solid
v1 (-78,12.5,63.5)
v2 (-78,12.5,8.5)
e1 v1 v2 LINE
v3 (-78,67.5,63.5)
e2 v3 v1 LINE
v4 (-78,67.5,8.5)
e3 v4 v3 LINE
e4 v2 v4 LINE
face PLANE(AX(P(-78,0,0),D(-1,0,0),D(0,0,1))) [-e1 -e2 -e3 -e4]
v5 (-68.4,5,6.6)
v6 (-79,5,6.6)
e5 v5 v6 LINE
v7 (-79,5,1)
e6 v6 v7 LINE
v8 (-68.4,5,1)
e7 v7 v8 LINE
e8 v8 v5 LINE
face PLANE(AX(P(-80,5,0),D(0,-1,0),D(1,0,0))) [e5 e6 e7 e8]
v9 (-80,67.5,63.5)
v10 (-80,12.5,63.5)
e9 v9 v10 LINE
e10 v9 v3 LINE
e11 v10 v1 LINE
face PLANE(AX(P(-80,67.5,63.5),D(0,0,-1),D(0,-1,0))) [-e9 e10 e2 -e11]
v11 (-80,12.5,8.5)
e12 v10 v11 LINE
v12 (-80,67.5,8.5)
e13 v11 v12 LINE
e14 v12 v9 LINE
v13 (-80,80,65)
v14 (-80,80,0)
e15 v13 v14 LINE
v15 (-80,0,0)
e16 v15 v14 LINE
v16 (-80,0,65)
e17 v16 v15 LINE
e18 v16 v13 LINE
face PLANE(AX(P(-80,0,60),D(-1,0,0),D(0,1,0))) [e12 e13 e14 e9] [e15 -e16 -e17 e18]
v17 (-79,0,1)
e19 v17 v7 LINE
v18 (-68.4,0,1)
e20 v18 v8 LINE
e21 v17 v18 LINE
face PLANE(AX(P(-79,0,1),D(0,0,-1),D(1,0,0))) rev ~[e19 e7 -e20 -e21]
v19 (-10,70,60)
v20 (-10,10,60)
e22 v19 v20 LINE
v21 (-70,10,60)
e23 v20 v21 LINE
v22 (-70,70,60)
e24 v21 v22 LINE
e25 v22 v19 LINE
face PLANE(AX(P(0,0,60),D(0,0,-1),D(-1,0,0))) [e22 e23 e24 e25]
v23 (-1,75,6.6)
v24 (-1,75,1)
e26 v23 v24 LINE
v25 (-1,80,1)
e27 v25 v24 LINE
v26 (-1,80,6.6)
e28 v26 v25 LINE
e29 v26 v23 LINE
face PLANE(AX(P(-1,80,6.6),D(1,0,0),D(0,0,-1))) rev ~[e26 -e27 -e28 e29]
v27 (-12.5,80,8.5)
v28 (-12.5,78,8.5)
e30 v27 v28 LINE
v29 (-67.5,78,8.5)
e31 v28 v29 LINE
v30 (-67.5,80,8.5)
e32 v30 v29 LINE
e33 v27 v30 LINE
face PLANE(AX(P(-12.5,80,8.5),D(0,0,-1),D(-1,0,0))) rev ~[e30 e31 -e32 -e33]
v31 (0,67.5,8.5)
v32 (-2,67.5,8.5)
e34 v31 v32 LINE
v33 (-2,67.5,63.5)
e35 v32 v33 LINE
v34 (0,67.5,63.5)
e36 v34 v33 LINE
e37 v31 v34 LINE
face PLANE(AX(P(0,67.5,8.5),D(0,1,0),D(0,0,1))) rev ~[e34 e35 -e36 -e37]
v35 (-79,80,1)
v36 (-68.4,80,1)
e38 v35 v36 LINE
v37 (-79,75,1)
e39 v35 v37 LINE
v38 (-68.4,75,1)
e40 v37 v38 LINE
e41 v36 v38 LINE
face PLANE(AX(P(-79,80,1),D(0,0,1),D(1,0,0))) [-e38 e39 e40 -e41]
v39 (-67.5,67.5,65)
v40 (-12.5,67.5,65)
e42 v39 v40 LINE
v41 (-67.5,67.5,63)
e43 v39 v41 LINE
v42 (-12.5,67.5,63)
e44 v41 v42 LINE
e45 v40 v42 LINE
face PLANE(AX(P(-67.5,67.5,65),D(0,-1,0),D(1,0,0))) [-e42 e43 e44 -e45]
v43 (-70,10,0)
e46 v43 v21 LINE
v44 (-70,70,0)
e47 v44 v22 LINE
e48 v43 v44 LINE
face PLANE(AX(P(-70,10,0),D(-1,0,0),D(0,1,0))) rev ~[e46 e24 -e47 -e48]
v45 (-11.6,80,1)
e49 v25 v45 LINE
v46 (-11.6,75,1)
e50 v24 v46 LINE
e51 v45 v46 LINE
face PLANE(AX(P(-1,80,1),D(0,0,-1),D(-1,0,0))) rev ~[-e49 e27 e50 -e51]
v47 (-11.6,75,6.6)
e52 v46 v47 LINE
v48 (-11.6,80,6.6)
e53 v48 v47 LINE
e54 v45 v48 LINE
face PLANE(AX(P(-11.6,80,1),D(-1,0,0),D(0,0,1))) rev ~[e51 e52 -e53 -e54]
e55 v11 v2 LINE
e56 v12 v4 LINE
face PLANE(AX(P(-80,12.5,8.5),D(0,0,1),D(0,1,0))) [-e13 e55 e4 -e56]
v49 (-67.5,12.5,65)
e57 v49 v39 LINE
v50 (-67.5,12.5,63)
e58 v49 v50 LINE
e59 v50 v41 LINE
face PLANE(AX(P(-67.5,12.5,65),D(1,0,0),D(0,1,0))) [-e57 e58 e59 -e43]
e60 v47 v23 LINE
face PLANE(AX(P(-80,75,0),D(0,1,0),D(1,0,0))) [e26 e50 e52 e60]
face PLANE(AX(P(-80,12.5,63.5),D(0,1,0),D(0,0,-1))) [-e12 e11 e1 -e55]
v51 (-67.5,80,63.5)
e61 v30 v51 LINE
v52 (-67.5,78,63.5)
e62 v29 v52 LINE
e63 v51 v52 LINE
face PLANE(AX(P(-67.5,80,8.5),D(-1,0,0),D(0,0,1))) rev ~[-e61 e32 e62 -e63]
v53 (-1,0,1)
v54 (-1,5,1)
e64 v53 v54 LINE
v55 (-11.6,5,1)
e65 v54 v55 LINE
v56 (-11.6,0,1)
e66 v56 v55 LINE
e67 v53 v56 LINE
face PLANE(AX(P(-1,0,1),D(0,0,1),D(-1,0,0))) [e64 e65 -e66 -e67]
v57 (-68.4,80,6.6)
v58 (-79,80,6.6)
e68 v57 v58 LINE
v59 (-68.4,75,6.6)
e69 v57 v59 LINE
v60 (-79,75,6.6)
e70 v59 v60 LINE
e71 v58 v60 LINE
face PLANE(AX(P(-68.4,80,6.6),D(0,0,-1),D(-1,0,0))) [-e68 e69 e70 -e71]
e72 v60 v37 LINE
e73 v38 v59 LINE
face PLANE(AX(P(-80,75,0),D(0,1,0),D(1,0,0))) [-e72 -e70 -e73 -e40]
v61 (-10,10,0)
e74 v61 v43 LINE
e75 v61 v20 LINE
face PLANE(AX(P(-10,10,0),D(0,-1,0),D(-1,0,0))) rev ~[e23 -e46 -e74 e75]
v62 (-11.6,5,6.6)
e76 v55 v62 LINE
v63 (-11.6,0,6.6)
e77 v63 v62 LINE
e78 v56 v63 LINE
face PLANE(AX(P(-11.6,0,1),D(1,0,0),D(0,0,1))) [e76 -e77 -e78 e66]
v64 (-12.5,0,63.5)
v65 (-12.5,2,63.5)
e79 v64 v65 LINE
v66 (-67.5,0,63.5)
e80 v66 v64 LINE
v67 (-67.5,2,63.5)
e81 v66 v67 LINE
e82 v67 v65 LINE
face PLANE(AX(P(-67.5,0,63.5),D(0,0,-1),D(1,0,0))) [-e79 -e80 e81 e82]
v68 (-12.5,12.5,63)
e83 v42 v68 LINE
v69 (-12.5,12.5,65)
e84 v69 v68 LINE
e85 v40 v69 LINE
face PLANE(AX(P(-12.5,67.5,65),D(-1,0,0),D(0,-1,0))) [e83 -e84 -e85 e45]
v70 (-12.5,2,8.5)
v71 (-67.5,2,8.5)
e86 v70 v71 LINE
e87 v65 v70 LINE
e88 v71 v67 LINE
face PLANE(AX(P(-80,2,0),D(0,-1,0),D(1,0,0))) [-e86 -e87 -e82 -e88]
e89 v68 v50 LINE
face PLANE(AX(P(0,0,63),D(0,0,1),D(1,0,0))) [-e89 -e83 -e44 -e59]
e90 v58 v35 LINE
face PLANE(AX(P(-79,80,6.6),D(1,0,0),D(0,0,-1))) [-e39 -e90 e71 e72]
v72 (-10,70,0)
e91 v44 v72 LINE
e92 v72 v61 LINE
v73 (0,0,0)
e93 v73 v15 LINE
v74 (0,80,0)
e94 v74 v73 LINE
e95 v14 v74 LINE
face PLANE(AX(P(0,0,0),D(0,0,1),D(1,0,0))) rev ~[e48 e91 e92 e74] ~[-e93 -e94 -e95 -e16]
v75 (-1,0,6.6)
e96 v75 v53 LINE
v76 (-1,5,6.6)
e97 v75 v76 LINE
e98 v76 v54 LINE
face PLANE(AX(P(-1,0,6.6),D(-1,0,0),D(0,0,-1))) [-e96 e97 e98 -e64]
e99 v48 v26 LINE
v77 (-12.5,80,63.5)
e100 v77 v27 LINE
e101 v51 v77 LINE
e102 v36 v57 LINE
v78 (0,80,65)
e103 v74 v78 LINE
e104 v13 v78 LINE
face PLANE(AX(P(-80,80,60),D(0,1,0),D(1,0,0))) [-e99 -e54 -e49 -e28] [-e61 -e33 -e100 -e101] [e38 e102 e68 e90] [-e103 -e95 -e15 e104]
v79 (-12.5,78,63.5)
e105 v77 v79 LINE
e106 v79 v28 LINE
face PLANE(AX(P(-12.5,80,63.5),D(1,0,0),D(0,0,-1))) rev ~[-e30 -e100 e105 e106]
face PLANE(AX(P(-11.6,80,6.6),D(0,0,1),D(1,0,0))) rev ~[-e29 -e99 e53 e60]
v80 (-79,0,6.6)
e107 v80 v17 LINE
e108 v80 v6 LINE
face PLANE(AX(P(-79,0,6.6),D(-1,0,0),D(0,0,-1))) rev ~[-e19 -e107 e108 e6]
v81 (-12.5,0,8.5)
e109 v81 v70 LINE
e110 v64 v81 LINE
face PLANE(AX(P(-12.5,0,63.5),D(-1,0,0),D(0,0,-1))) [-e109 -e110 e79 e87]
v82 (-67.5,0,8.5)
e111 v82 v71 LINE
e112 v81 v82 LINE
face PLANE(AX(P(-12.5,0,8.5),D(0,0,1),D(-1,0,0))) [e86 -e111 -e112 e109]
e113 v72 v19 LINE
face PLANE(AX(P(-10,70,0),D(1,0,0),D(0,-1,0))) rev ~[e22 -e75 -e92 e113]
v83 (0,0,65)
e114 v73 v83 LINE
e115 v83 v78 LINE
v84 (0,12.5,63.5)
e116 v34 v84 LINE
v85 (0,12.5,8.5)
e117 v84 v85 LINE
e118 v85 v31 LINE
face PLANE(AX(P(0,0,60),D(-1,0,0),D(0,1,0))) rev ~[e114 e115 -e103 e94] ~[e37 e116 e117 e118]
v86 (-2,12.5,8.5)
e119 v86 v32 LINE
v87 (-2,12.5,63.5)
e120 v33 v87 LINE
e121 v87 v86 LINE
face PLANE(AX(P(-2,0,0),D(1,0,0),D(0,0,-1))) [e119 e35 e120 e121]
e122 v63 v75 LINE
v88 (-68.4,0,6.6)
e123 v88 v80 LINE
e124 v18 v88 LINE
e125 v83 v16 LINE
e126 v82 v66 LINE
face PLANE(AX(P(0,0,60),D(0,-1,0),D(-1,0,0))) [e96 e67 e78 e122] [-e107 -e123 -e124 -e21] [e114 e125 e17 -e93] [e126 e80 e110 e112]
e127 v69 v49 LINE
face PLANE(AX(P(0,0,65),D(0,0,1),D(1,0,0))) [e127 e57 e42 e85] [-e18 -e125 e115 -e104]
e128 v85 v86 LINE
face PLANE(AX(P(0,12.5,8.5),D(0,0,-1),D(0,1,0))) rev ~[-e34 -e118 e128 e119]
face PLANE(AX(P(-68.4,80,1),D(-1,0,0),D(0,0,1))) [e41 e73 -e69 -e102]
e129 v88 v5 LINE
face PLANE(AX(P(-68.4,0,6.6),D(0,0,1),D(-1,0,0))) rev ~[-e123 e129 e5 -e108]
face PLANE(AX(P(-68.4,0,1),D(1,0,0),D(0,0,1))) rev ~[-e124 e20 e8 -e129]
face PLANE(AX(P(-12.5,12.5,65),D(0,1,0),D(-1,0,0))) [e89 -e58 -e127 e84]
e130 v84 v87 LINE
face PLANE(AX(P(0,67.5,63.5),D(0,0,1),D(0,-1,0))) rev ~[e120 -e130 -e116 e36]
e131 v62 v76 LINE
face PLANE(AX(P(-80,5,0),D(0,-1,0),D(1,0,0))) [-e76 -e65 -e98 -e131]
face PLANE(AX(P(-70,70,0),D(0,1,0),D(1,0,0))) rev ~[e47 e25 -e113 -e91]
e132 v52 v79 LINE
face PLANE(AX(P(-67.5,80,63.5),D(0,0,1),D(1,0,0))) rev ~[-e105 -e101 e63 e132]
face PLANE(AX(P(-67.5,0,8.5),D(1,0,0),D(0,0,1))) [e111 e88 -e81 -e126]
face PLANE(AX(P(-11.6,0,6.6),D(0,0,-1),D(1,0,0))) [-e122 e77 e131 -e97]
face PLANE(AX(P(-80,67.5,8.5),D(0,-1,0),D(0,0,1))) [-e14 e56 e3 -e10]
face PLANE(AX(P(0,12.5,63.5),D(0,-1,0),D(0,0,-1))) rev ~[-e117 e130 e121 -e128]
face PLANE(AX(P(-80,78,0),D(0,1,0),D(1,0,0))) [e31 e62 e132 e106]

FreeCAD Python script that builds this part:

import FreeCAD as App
import Part
import Sketcher

V = App.Vector
Q = App.Units.Quantity

doc = App.newDocument("Part")
body = doc.addObject("PartDesign::Body", "Body")

# Sketch on XY plane
sketch1 = body.newObject("Sketcher::SketchObject", "Sketch")
sketch1.AttachmentSupport = (doc.getObject("XY_Plane"), [""])
sketch1.MapMode = "FlatFace"
sketch1.addGeometry([
    Part.LineSegment(V(-80, 0, 0), V(0, 0, 0)),
    Part.LineSegment(V(0, 0, 0), V(0, 80, 0)),
    Part.LineSegment(V(0, 80, 0), V(-80, 80, 0)),
    Part.LineSegment(V(-80, 80, 0), V(-80, 0, 0)),
], False)
sketch1.addConstraint([
    Sketcher.Constraint("Coincident", 0, 2, 1, 1),
    Sketcher.Constraint("Coincident", 1, 2, 2, 1),
    Sketcher.Constraint("Coincident", 2, 2, 3, 1),
    Sketcher.Constraint("Coincident", 3, 2, 0, 1),
    Sketcher.Constraint("Horizontal", 0),
    Sketcher.Constraint("Vertical", 1),
    Sketcher.Constraint("Horizontal", 2),
    Sketcher.Constraint("Vertical", 3),
    Sketcher.Constraint("Coincident", 0, 2, -1, 1),
    Sketcher.Constraint("Equal", 2, 1),
    Sketcher.Constraint("DistanceX", 0, 1, 0, 2, Q("80 mm")),
])
pad1 = body.newObject("PartDesign::Pad", "Pad")
pad1.Profile = sketch1
pad1.Length = 60

# Sketch on XY plane
sketch2 = body.newObject("Sketcher::SketchObject", "Sketch001")
sketch2.AttachmentSupport = (doc.getObject("XY_Plane"), [""])
sketch2.MapMode = "FlatFace"
sketch2.AttachmentOffset = App.Placement(V(0, 0, 60), App.Rotation())
sketch2.addGeometry([
    Part.LineSegment(V(-80, 0, 0), V(0, 0, 0)),
    Part.LineSegment(V(0, 0, 0), V(0, 80, 0)),
    Part.LineSegment(V(0, 80, 0), V(-80, 80, 0)),
    Part.LineSegment(V(-80, 80, 0), V(-80, 0, 0)),
], False)
sketch2.addConstraint([
    Sketcher.Constraint("Coincident", 0, 2, 1, 1),
    Sketcher.Constraint("Coincident", 1, 2, 2, 1),
    Sketcher.Constraint("Coincident", 2, 2, 3, 1),
    Sketcher.Constraint("Coincident", 3, 2, 0, 1),
    Sketcher.Constraint("Horizontal", 0),
    Sketcher.Constraint("Vertical", 1),
    Sketcher.Constraint("Horizontal", 2),
    Sketcher.Constraint("Vertical", 3),
    Sketcher.Constraint("Coincident", 0, 2, -1, 1),
    Sketcher.Constraint("Equal", 2, 1),
    Sketcher.Constraint("DistanceX", 0, 1, 0, 2, Q("80 mm")),
])
pad2 = body.newObject("PartDesign::Pad", "Pad001")
pad2.Profile = sketch2
pad2.Length = 5

# Sketch on XY plane
sketch3 = body.newObject("Sketcher::SketchObject", "Sketch002")
sketch3.AttachmentSupport = (doc.getObject("XY_Plane"), [""])
sketch3.MapMode = "FlatFace"
sketch3.AttachmentOffset = App.Placement(V(0, 0, 65), App.Rotation())
sketch3.addGeometry([
    Part.LineSegment(V(-68, 12, 0), V(-12, 12, 0)),
    Part.LineSegment(V(-12, 12, 0), V(-12, 68, 0)),
    Part.LineSegment(V(-12, 68, 0), V(-68, 68, 0)),
    Part.LineSegment(V(-68, 68, 0), V(-68, 12, 0)),
], False)
sketch3.addConstraint([
    Sketcher.Constraint("Coincident", 0, 2, 1, 1),
    Sketcher.Constraint("Coincident", 1, 2, 2, 1),
    Sketcher.Constraint("Coincident", 2, 2, 3, 1),
    Sketcher.Constraint("Coincident", 3, 2, 0, 1),
    Sketcher.Constraint("Horizontal", 0),
    Sketcher.Constraint("Vertical", 1),
    Sketcher.Constraint("Horizontal", 2),
    Sketcher.Constraint("Vertical", 3),
    Sketcher.Constraint("Equal", 2, 1),
    Sketcher.Constraint("DistanceX", 0, 1, 0, 2, Q("55 mm")),
    Sketcher.Constraint("DistanceX", 0, 2, -1, 1, Q("12.5 mm")),
    Sketcher.Constraint("DistanceY", -1, 1, 0, 2, Q("12.5 mm")),
])
pocket1 = body.newObject("PartDesign::Pocket", "Pocket")
pocket1.Profile = sketch3
pocket1.Length = 2

# Sketch on YZ plane
sketch4 = body.newObject("Sketcher::SketchObject", "Sketch003")
sketch4.AttachmentSupport = (doc.getObject("YZ_Plane"), [""])
sketch4.MapMode = "FlatFace"
sketch4.addGeometry([
    Part.LineSegment(V(68, 64, 0), V(12, 64, 0)),
    Part.LineSegment(V(12, 64, 0), V(12, 8, 0)),
    Part.LineSegment(V(12, 8, 0), V(68, 8, 0)),
    Part.LineSegment(V(68, 8, 0), V(68, 64, 0)),
], False)
sketch4.addConstraint([
    Sketcher.Constraint("Coincident", 0, 2, 1, 1),
    Sketcher.Constraint("Coincident", 1, 2, 2, 1),
    Sketcher.Constraint("Coincident", 2, 2, 3, 1),
    Sketcher.Constraint("Coincident", 3, 2, 0, 1),
    Sketcher.Constraint("Horizontal", 0),
    Sketcher.Constraint("Vertical", 1),
    Sketcher.Constraint("Horizontal", 2),
    Sketcher.Constraint("Vertical", 3),
    Sketcher.Constraint("Equal", 2, 1),
    Sketcher.Constraint("DistanceX", 0, 2, 0, 1, Q("55 mm")),
    Sketcher.Constraint("DistanceX", -1, 1, 0, 2, Q("12.5 mm")),
    Sketcher.Constraint("DistanceY", -1, 1, 0, 2, Q("63.5 mm")),
])
pocket2 = body.newObject("PartDesign::Pocket", "Pocket001")
pocket2.Profile = sketch4
pocket2.Length = 2

# Sketch on XZ plane
sketch5 = body.newObject("Sketcher::SketchObject", "Sketch004")
sketch5.AttachmentSupport = (doc.getObject("XZ_Plane"), [""])
sketch5.MapMode = "FlatFace"
sketch5.AttachmentOffset = App.Placement(V(0, 0, -80), App.Rotation())
sketch5.addGeometry([
    Part.LineSegment(V(-68, 8, 0), V(-68, 64, 0)),
    Part.LineSegment(V(-68, 64, 0), V(-12, 64, 0)),
    Part.LineSegment(V(-12, 64, 0), V(-12, 8, 0)),
    Part.LineSegment(V(-12, 8, 0), V(-68, 8, 0)),
], False)
sketch5.addConstraint([
    Sketcher.Constraint("Coincident", 0, 2, 1, 1),
    Sketcher.Constraint("Coincident", 1, 2, 2, 1),
    Sketcher.Constraint("Coincident", 2, 2, 3, 1),
    Sketcher.Constraint("Coincident", 3, 2, 0, 1),
    Sketcher.Constraint("Vertical", 0),
    Sketcher.Constraint("Horizontal", 1),
    Sketcher.Constraint("Vertical", 2),
    Sketcher.Constraint("Horizontal", 3),
    Sketcher.Constraint("Equal", 3, 0),
    Sketcher.Constraint("DistanceX", 1, 1, 1, 2, Q("55 mm")),
    Sketcher.Constraint("DistanceX", 0, 2, -1, 1, Q("67.5 mm")),
    Sketcher.Constraint("DistanceY", -1, 1, 0, 2, Q("63.5 mm")),
])
pocket3 = body.newObject("PartDesign::Pocket", "Pocket002")
pocket3.Profile = sketch5
pocket3.Length = 2
pocket3.Reversed = True

# Sketch on YZ plane
sketch6 = body.newObject("Sketcher::SketchObject", "Sketch005")
sketch6.AttachmentSupport = (doc.getObject("YZ_Plane"), [""])
sketch6.MapMode = "FlatFace"
sketch6.AttachmentOffset = App.Placement(V(0, 0, -80), App.Rotation())
sketch6.addGeometry([
    Part.LineSegment(V(12, 8, 0), V(12, 64, 0)),
    Part.LineSegment(V(12, 64, 0), V(68, 64, 0)),
    Part.LineSegment(V(68, 64, 0), V(68, 8, 0)),
    Part.LineSegment(V(68, 8, 0), V(12, 8, 0)),
], False)
sketch6.addConstraint([
    Sketcher.Constraint("Coincident", 0, 2, 1, 1),
    Sketcher.Constraint("Coincident", 1, 2, 2, 1),
    Sketcher.Constraint("Coincident", 2, 2, 3, 1),
    Sketcher.Constraint("Coincident", 3, 2, 0, 1),
    Sketcher.Constraint("Vertical", 0),
    Sketcher.Constraint("Horizontal", 1),
    Sketcher.Constraint("Vertical", 2),
    Sketcher.Constraint("Horizontal", 3),
    Sketcher.Constraint("Equal", 3, 0),
    Sketcher.Constraint("DistanceX", 1, 1, 1, 2, Q("55 mm")),
    Sketcher.Constraint("DistanceX", -1, 1, 0, 2, Q("12.5 mm")),
    Sketcher.Constraint("DistanceY", -1, 1, 0, 2, Q("63.5 mm")),
])
pocket4 = body.newObject("PartDesign::Pocket", "Pocket003")
pocket4.Profile = sketch6
pocket4.Length = 2
pocket4.Reversed = True

# Sketch on XZ plane
sketch7 = body.newObject("Sketcher::SketchObject", "Sketch006")
sketch7.AttachmentSupport = (doc.getObject("XZ_Plane"), [""])
sketch7.MapMode = "FlatFace"
sketch7.addGeometry([
    Part.LineSegment(V(-12, 64, 0), V(-68, 64, 0)),
    Part.LineSegment(V(-68, 64, 0), V(-68, 8, 0)),
    Part.LineSegment(V(-68, 8, 0), V(-12, 8, 0)),
    Part.LineSegment(V(-12, 8, 0), V(-12, 64, 0)),
], False)
sketch7.addConstraint([
    Sketcher.Constraint("Coincident", 0, 2, 1, 1),
    Sketcher.Constraint("Coincident", 1, 2, 2, 1),
    Sketcher.Constraint("Coincident", 2, 2, 3, 1),
    Sketcher.Constraint("Coincident", 3, 2, 0, 1),
    Sketcher.Constraint("Horizontal", 0),
    Sketcher.Constraint("Vertical", 1),
    Sketcher.Constraint("Horizontal", 2),
    Sketcher.Constraint("Vertical", 3),
    Sketcher.Constraint("Equal", 2, 1),
    Sketcher.Constraint("DistanceX", 0, 2, 0, 1, Q("55 mm")),
    Sketcher.Constraint("DistanceX", 0, 2, -1, 1, Q("67.5 mm")),
    Sketcher.Constraint("DistanceY", -1, 1, 0, 2, Q("63.5 mm")),
])
pocket5 = body.newObject("PartDesign::Pocket", "Pocket004")
pocket5.Profile = sketch7
pocket5.Length = 2

# Sketch on XZ plane
sketch8 = body.newObject("Sketcher::SketchObject", "Sketch007")
sketch8.AttachmentSupport = (doc.getObject("XZ_Plane"), [""])
sketch8.MapMode = "FlatFace"
sketch8.AttachmentOffset = App.Placement(V(0, 0, -80), App.Rotation())
sketch8.addGeometry([
    Part.LineSegment(V(-1, 7, 0), V(-1, 1, 0)),  # 0
    Part.LineSegment(V(-1, 1, 0), V(-12, 1, 0)),  # 1
    Part.LineSegment(V(-12, 1, 0), V(-12, 7, 0)),  # 2
    Part.LineSegment(V(-12, 7, 0), V(-1, 7, 0)),  # 3
    Part.LineSegment(V(-68, 1, 0), V(-79, 1, 0)),  # 4
    Part.LineSegment(V(-79, 1, 0), V(-79, 7, 0)),  # 5
    Part.LineSegment(V(-79, 7, 0), V(-68, 7, 0)),  # 6
    Part.LineSegment(V(-68, 7, 0), V(-68, 1, 0)),  # 7
], False)
sketch8.addConstraint([
    Sketcher.Constraint("Coincident", 0, 2, 1, 1),
    Sketcher.Constraint("Coincident", 1, 2, 2, 1),
    Sketcher.Constraint("Coincident", 2, 2, 3, 1),
    Sketcher.Constraint("Coincident", 3, 2, 0, 1),
    Sketcher.Constraint("Coincident", 4, 2, 5, 1),
    Sketcher.Constraint("Coincident", 5, 2, 6, 1),
    Sketcher.Constraint("Coincident", 6, 2, 7, 1),
    Sketcher.Constraint("Coincident", 7, 2, 4, 1),
    Sketcher.Constraint("Vertical", 0),
    Sketcher.Constraint("Horizontal", 1),
    Sketcher.Constraint("Vertical", 2),
    Sketcher.Constraint("Horizontal", 3),
    Sketcher.Constraint("Horizontal", 4),
    Sketcher.Constraint("Vertical", 5),
    Sketcher.Constraint("Horizontal", 6),
    Sketcher.Constraint("Vertical", 7),
    Sketcher.Constraint("Horizontal", 1, 2, 4, 2),
    Sketcher.Constraint("Horizontal", 3, 2, 5, 2),
    Sketcher.Constraint("Equal", 3, 4),
    Sketcher.Constraint("DistanceX", 1, 2, 1, 1, Q("10.6 mm")),
    Sketcher.Constraint("DistanceY", 0, 2, 0, 1, Q("5.6 mm")),
    Sketcher.Constraint("DistanceX", 0, 2, -1, 1, Q("1 mm")),
    Sketcher.Constraint("DistanceY", -1, 1, 0, 2, Q("1 mm")),
    Sketcher.Constraint("DistanceX", 4, 2, -1, 1, Q("79 mm")),
])
pocket6 = body.newObject("PartDesign::Pocket", "Pocket005")
pocket6.Profile = sketch8
pocket6.Length = 5
pocket6.Reversed = True

# Sketch on XZ plane
sketch9 = body.newObject("Sketcher::SketchObject", "Sketch008")
sketch9.AttachmentSupport = (doc.getObject("XZ_Plane"), [""])
sketch9.MapMode = "FlatFace"
sketch9.addGeometry([
    Part.LineSegment(V(-79, 7, 0), V(-79, 1, 0)),  # 0
    Part.LineSegment(V(-79, 1, 0), V(-68, 1, 0)),  # 1
    Part.LineSegment(V(-68, 1, 0), V(-68, 7, 0)),  # 2
    Part.LineSegment(V(-68, 7, 0), V(-79, 7, 0)),  # 3
    Part.LineSegment(V(-12, 1, 0), V(-1, 1, 0)),  # 4
    Part.LineSegment(V(-1, 1, 0), V(-1, 7, 0)),  # 5
    Part.LineSegment(V(-1, 7, 0), V(-12, 7, 0)),  # 6
    Part.LineSegment(V(-12, 7, 0), V(-12, 1, 0)),  # 7
], False)
sketch9.addConstraint([
    Sketcher.Constraint("Coincident", 0, 2, 1, 1),
    Sketcher.Constraint("Coincident", 1, 2, 2, 1),
    Sketcher.Constraint("Coincident", 2, 2, 3, 1),
    Sketcher.Constraint("Coincident", 3, 2, 0, 1),
    Sketcher.Constraint("Coincident", 4, 2, 5, 1),
    Sketcher.Constraint("Coincident", 5, 2, 6, 1),
    Sketcher.Constraint("Coincident", 6, 2, 7, 1),
    Sketcher.Constraint("Coincident", 7, 2, 4, 1),
    Sketcher.Constraint("Vertical", 0),
    Sketcher.Constraint("Horizontal", 1),
    Sketcher.Constraint("Vertical", 2),
    Sketcher.Constraint("Horizontal", 3),
    Sketcher.Constraint("Horizontal", 4),
    Sketcher.Constraint("Vertical", 5),
    Sketcher.Constraint("Horizontal", 6),
    Sketcher.Constraint("Vertical", 7),
    Sketcher.Constraint("Horizontal", 1, 2, 4, 2),
    Sketcher.Constraint("Horizontal", 3, 2, 5, 2),
    Sketcher.Constraint("Equal", 3, 4),
    Sketcher.Constraint("DistanceX", 1, 1, 1, 2, Q("10.6 mm")),
    Sketcher.Constraint("DistanceY", 0, 2, 0, 1, Q("5.6 mm")),
    Sketcher.Constraint("DistanceX", 0, 2, -1, 1, Q("79 mm")),
    Sketcher.Constraint("DistanceY", -1, 1, 0, 2, Q("1 mm")),
    Sketcher.Constraint("DistanceX", 4, 2, -1, 1, Q("1 mm")),
])
pocket7 = body.newObject("PartDesign::Pocket", "Pocket006")
pocket7.Profile = sketch9
pocket7.Length = 5

# Sketch on XY plane
sketch10 = body.newObject("Sketcher::SketchObject", "Sketch009")
sketch10.AttachmentSupport = (doc.getObject("XY_Plane"), [""])
sketch10.MapMode = "FlatFace"
sketch10.addGeometry([
    Part.LineSegment(V(-10, 70, 0), V(-10, 10, 0)),
    Part.LineSegment(V(-10, 10, 0), V(-70, 10, 0)),
    Part.LineSegment(V(-70, 10, 0), V(-70, 70, 0)),
    Part.LineSegment(V(-70, 70, 0), V(-10, 70, 0)),
], False)
sketch10.addConstraint([
    Sketcher.Constraint("Coincident", 0, 2, 1, 1),
    Sketcher.Constraint("Coincident", 1, 2, 2, 1),
    Sketcher.Constraint("Coincident", 2, 2, 3, 1),
    Sketcher.Constraint("Coincident", 3, 2, 0, 1),
    Sketcher.Constraint("Vertical", 0),
    Sketcher.Constraint("Horizontal", 1),
    Sketcher.Constraint("Vertical", 2),
    Sketcher.Constraint("Horizontal", 3),
    Sketcher.Constraint("Equal", 3, 0),
    Sketcher.Constraint("DistanceX", 1, 2, 1, 1, Q("60 mm")),
    Sketcher.Constraint("DistanceX", 0, 2, -1, 1, Q("10 mm")),
    Sketcher.Constraint("DistanceY", -1, 1, 0, 2, Q("10 mm")),
])
pocket8 = body.newObject("PartDesign::Pocket", "Pocket007")
pocket8.Profile = sketch10
pocket8.Length = 60
pocket8.Reversed = True

doc.recompute()
